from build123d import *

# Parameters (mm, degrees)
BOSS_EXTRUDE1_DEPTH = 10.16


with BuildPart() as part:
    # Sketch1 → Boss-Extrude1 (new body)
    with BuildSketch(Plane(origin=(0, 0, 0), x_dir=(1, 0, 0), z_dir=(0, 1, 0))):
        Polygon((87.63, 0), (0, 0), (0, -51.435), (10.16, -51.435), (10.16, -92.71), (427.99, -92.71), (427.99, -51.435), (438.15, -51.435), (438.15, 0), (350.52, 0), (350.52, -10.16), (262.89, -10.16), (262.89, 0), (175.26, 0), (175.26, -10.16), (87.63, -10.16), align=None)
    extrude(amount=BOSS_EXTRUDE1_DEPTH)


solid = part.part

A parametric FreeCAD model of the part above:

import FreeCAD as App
import Part
import Sketcher

V = App.Vector
Q = App.Units.Quantity

doc = App.newDocument("Part")
body = doc.addObject("PartDesign::Body", "Body")

# Sketch on XZ plane
sketch1 = doc.addObject("Sketcher::SketchObject", "Sketch")
body.addObject(sketch1)
sketch1.AttachmentSupport = (doc.XZ_Plane, [""])
sketch1.MapMode = "FlatFace"
sketch1.addGeometry([
    Part.LineSegment(V(88, 0, 0), V(0, 0, 0)),  # 0
    Part.LineSegment(V(0, 0, 0), V(0, 51, 0)),  # 1
    Part.LineSegment(V(0, 51, 0), V(10, 51, 0)),  # 2
    Part.LineSegment(V(10, 51, 0), V(10, 93, 0)),  # 3
    Part.LineSegment(V(10, 93, 0), V(428, 93, 0)),  # 4
    Part.LineSegment(V(428, 93, 0), V(428, 51, 0)),  # 5
    Part.LineSegment(V(428, 51, 0), V(438, 51, 0)),  # 6
    Part.LineSegment(V(438, 51, 0), V(438, 0, 0)),  # 7
    Part.LineSegment(V(438, 0, 0), V(351, 0, 0)),  # 8
    Part.LineSegment(V(351, 0, 0), V(351, 10, 0)),  # 9
    Part.LineSegment(V(351, 10, 0), V(263, 10, 0)),  # 10
    Part.LineSegment(V(263, 10, 0), V(263, 0, 0)),  # 11
    Part.LineSegment(V(263, 0, 0), V(175, 0, 0)),  # 12
    Part.LineSegment(V(175, 0, 0), V(175, 10, 0)),  # 13
    Part.LineSegment(V(175, 10, 0), V(88, 10, 0)),  # 14
    Part.LineSegment(V(88, 10, 0), V(88, 0, 0)),  # 15
], False)
sketch1.addConstraint([
    Sketcher.Constraint("Coincident", 0, 2, 1, 1),
    Sketcher.Constraint("Coincident", 1, 2, 2, 1),
    Sketcher.Constraint("Coincident", 2, 2, 3, 1),
    Sketcher.Constraint("Coincident", 3, 2, 4, 1),
    Sketcher.Constraint("Coincident", 4, 2, 5, 1),
    Sketcher.Constraint("Coincident", 5, 2, 6, 1),
    Sketcher.Constraint("Coincident", 6, 2, 7, 1),
    Sketcher.Constraint("Coincident", 7, 2, 8, 1),
    Sketcher.Constraint("Coincident", 8, 2, 9, 1),
    Sketcher.Constraint("Coincident", 9, 2, 10, 1),
    Sketcher.Constraint("Coincident", 10, 2, 11, 1),
    Sketcher.Constraint("Coincident", 11, 2, 12, 1),
    Sketcher.Constraint("Coincident", 12, 2, 13, 1),
    Sketcher.Constraint("Coincident", 13, 2, 14, 1),
    Sketcher.Constraint("Coincident", 14, 2, 15, 1),
    Sketcher.Constraint("Coincident", 15, 2, 0, 1),
    Sketcher.Constraint("Horizontal", 0),
    Sketcher.Constraint("Vertical", 1),
    Sketcher.Constraint("Horizontal", 2),
    Sketcher.Constraint("Vertical", 3),
    Sketcher.Constraint("Horizontal", 4),
    Sketcher.Constraint("Vertical", 5),
    Sketcher.Constraint("Horizontal", 6),
    Sketcher.Constraint("Vertical", 7),
    Sketcher.Constraint("Horizontal", 8),
    Sketcher.Constraint("Vertical", 9),
    Sketcher.Constraint("Horizontal", 10),
    Sketcher.Constraint("Vertical", 11),
    Sketcher.Constraint("Horizontal", 12),
    Sketcher.Constraint("Vertical", 13),
    Sketcher.Constraint("Horizontal", 14),
    Sketcher.Constraint("Vertical", 15),
    Sketcher.Constraint("Coincident", 0, 2, -1, 1),
    Sketcher.Constraint("PointOnObject", 7, 2, -1),
    Sketcher.Constraint("PointOnObject", 11, 2, -1),
    Sketcher.Constraint("Horizontal", 2, 2, 5, 2),
    Sketcher.Constraint("Horizontal", 10, 2, 13, 2),
    Sketcher.Constraint("Equal", 2, 6),
    Sketcher.Constraint("Equal", 0, 8),
    Sketcher.Constraint("Equal", 8, 10),
    Sketcher.Constraint("Equal", 10, 12),
    Sketcher.Constraint("Equal", 12, 14),
    Sketcher.Constraint("Equal", 6, 9),
    Sketcher.Constraint("DistanceX", 2, 1, 2, 2, Q("0.4 in")),
    Sketcher.Constraint("DistanceX", 0, 2, 0, 1, Q("3.45 in")),
    Sketcher.Constraint("DistanceY", 1, 1, 1, 2, Q("2.025 in")),
    Sketcher.Constraint("DistanceY", 3, 1, 3, 2, Q("1.625 in")),
])
pad1 = doc.addObject("PartDesign::Pad", "Pad")
body.addObject(pad1)
pad1.Profile = sketch1
pad1.Length = Q("0.4 in")
pad1.Reversed = True

doc.recompute()
